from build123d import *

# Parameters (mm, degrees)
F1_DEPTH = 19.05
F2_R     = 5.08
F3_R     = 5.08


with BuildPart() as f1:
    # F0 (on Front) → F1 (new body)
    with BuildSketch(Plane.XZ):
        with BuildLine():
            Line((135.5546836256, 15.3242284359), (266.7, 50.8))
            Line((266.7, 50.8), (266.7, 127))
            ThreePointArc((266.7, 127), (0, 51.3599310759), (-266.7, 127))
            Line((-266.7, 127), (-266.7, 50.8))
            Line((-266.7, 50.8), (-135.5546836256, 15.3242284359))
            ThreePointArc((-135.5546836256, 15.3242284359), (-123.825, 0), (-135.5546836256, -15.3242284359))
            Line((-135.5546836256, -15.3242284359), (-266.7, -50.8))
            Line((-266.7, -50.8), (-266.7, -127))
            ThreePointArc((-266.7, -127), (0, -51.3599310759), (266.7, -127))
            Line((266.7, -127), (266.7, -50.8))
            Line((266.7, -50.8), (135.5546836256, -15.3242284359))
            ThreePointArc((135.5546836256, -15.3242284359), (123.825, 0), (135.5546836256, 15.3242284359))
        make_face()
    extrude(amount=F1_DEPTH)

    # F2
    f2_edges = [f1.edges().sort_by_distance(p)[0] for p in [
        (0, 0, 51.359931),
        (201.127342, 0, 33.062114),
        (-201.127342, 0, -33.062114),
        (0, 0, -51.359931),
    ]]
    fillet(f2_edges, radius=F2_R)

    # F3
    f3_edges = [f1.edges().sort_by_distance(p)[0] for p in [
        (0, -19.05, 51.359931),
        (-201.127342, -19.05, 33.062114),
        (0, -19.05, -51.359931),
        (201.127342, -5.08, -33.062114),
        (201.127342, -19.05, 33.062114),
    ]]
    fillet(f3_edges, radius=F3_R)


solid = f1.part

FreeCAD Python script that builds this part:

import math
import FreeCAD as App
import Part
import Sketcher

V = App.Vector
Q = App.Units.Quantity


def edges_at(feature, points):
    """Names of the edges that pass closest to the given points."""
    edges = feature.Shape.Edges
    near = lambda p: min(range(len(edges)), key=lambda i: edges[i].distToShape(Part.Vertex(*p))[0])
    return sorted({f"Edge{near(p) + 1}" for p in points})

doc = App.newDocument("Part")
params = doc.addObject("Spreadsheet::Sheet", "Params")
for row, (alias, value) in enumerate([
    ("sketch1_radius", "20 in"),
    ("sketch1_height", "3 in"),
    ("sketch1_radius2", "0.625 in"),
    ("pad1_length", "0.75 in"),
    ("fillet_radius", "0.2 in"),
    ("fillet2_radius", "0.2 in"),
], start=1):
    params.set(f"A{row}", alias)
    params.set(f"B{row}", "=" + value)
    params.setAlias(f"B{row}", alias)

body = doc.addObject("PartDesign::Body", "Body")

# Sketch on XZ plane
sketch1 = body.newObject("Sketcher::SketchObject", "Sketch")
sketch1.AttachmentSupport = (doc.getObject("XZ_Plane"), [""])
sketch1.MapMode = "FlatFace"
sketch1.addGeometry(Part.LineSegment(V(136, 15, 0), V(267, 51, 0)), False)
sketch1.addGeometry(Part.LineSegment(V(267, 51, 0), V(267, 127, 0)), False)
sketch1.addGeometry(Part.ArcOfCircle(Part.Circle(V(0, 559, 0), V(0, 0, 1), 508), math.radians(-122), math.radians(-58)), False)
sketch1.addGeometry(Part.LineSegment(V(-267, 127, 0), V(-267, 51, 0)), False)
sketch1.addGeometry(Part.LineSegment(V(-267, 51, 0), V(-136, 15, 0)), False)
sketch1.addGeometry(Part.ArcOfCircle(Part.Circle(V(-140, 0, 0), V(0, 0, 1), 16), math.radians(-75), math.radians(75)), False)
sketch1.addGeometry(Part.LineSegment(V(-136, -15, 0), V(-267, -51, 0)), False)
sketch1.addGeometry(Part.LineSegment(V(-267, -51, 0), V(-267, -127, 0)), False)
sketch1.addGeometry(Part.ArcOfCircle(Part.Circle(V(0, -559, 0), V(0, 0, 1), 508), math.radians(58), math.radians(122)), False)
sketch1.addGeometry(Part.LineSegment(V(267, -127, 0), V(267, -51, 0)), False)
sketch1.addGeometry(Part.LineSegment(V(267, -51, 0), V(136, -15, 0)), False)
sketch1.addGeometry(Part.ArcOfCircle(Part.Circle(V(140, 0, 0), V(0, 0, 1), 16), math.radians(105), math.radians(255)), False)
sketch1.addConstraint(Sketcher.Constraint("Coincident", 0, 2, 1, 1))
sketch1.addConstraint(Sketcher.Constraint("Coincident", 1, 2, 2, 2))
sketch1.addConstraint(Sketcher.Constraint("Coincident", 2, 1, 3, 1))
sketch1.addConstraint(Sketcher.Constraint("Coincident", 3, 2, 4, 1))
sketch1.addConstraint(Sketcher.Constraint("Tangent", 4, 2, 5, 2))
sketch1.addConstraint(Sketcher.Constraint("Tangent", 5, 1, 6, 1))
sketch1.addConstraint(Sketcher.Constraint("Coincident", 6, 2, 7, 1))
sketch1.addConstraint(Sketcher.Constraint("Coincident", 7, 2, 8, 2))
sketch1.addConstraint(Sketcher.Constraint("Coincident", 8, 1, 9, 1))
sketch1.addConstraint(Sketcher.Constraint("Coincident", 9, 2, 10, 1))
sketch1.addConstraint(Sketcher.Constraint("Tangent", 10, 2, 11, 2))
sketch1.addConstraint(Sketcher.Constraint("Tangent", 11, 1, 0, 1))
sketch1.addConstraint(Sketcher.Constraint("Vertical", 1))
sketch1.addConstraint(Sketcher.Constraint("Vertical", 3))
sketch1.addConstraint(Sketcher.Constraint("Vertical", 7))
sketch1.addConstraint(Sketcher.Constraint("Vertical", 9))
sketch1.addConstraint(Sketcher.Constraint("Equal", 2, 8))
sketch1.addConstraint(Sketcher.Constraint("Equal", 5, 11))
sketch1.addConstraint(Sketcher.Constraint("Symmetric", 2, 3, 8, 3, -1, 1))
sketch1.addConstraint(Sketcher.Constraint("Symmetric", 5, 3, 11, 3, -1, 1))
sketch1.addConstraint(Sketcher.Constraint("Symmetric", 0, 2, 6, 2, -1, 1))
sketch1.addConstraint(Sketcher.Constraint("Symmetric", 3, 2, 9, 2, -1, 1))
sketch1.addConstraint(Sketcher.Constraint("Symmetric", 0, 2, 3, 2, -2))
sketch1.addConstraint(Sketcher.Constraint("PointOnObject", 2, 3, -2))
sketch1.addConstraint(Sketcher.Constraint("PointOnObject", 5, 3, -1))
sketch1.addConstraint(Sketcher.Constraint("Radius", 2, Q("20 in")))
sketch1.addConstraint(Sketcher.Constraint("DistanceY", 1, 1, 1, 2, Q("3 in")))
sketch1.addConstraint(Sketcher.Constraint("DistanceY", -1, 1, 0, 2, Q("2 in")))
sketch1.addConstraint(Sketcher.Constraint("Radius", 5, Q("0.625 in")))
sketch1.addConstraint(Sketcher.Constraint("DistanceX", 5, 3, 11, 3, Q("11 in")))
sketch1.addConstraint(Sketcher.Constraint("DistanceX", 11, 3, 0, 2, Q("5 in")))
sketch1.setExpression("Constraints[25]", "Params.sketch1_radius")
sketch1.setExpression("Constraints[26]", "Params.sketch1_height")
sketch1.setExpression("Constraints[28]", "Params.sketch1_radius2")
pad1 = body.newObject("PartDesign::Pad", "Pad")
pad1.Profile = sketch1
pad1.setExpression("Length", "Params.pad1_length")
doc.recompute()

fillet = body.newObject("PartDesign::Fillet", "Fillet")
fillet.Base = (pad1, edges_at(pad1, [
    (0, 0, 51.36),
    (201.127, 0, 33.062),
    (-201.127, 0, -33.062),
    (0, 0, -51.36),
]))
fillet.setExpression("Radius", "Params.fillet_radius")
doc.recompute()

fillet2 = body.newObject("PartDesign::Fillet", "Fillet001")
fillet2.Base = (fillet, edges_at(fillet, [
    (0, -19.05, 51.36),
    (-201.127, -19.05, 33.062),
    (0, -19.05, -51.36),
    (201.127, -5.08, -33.062),
    (201.127, -19.05, 33.062),
]))
fillet2.setExpression("Radius", "Params.fillet2_radius")

doc.recompute()
